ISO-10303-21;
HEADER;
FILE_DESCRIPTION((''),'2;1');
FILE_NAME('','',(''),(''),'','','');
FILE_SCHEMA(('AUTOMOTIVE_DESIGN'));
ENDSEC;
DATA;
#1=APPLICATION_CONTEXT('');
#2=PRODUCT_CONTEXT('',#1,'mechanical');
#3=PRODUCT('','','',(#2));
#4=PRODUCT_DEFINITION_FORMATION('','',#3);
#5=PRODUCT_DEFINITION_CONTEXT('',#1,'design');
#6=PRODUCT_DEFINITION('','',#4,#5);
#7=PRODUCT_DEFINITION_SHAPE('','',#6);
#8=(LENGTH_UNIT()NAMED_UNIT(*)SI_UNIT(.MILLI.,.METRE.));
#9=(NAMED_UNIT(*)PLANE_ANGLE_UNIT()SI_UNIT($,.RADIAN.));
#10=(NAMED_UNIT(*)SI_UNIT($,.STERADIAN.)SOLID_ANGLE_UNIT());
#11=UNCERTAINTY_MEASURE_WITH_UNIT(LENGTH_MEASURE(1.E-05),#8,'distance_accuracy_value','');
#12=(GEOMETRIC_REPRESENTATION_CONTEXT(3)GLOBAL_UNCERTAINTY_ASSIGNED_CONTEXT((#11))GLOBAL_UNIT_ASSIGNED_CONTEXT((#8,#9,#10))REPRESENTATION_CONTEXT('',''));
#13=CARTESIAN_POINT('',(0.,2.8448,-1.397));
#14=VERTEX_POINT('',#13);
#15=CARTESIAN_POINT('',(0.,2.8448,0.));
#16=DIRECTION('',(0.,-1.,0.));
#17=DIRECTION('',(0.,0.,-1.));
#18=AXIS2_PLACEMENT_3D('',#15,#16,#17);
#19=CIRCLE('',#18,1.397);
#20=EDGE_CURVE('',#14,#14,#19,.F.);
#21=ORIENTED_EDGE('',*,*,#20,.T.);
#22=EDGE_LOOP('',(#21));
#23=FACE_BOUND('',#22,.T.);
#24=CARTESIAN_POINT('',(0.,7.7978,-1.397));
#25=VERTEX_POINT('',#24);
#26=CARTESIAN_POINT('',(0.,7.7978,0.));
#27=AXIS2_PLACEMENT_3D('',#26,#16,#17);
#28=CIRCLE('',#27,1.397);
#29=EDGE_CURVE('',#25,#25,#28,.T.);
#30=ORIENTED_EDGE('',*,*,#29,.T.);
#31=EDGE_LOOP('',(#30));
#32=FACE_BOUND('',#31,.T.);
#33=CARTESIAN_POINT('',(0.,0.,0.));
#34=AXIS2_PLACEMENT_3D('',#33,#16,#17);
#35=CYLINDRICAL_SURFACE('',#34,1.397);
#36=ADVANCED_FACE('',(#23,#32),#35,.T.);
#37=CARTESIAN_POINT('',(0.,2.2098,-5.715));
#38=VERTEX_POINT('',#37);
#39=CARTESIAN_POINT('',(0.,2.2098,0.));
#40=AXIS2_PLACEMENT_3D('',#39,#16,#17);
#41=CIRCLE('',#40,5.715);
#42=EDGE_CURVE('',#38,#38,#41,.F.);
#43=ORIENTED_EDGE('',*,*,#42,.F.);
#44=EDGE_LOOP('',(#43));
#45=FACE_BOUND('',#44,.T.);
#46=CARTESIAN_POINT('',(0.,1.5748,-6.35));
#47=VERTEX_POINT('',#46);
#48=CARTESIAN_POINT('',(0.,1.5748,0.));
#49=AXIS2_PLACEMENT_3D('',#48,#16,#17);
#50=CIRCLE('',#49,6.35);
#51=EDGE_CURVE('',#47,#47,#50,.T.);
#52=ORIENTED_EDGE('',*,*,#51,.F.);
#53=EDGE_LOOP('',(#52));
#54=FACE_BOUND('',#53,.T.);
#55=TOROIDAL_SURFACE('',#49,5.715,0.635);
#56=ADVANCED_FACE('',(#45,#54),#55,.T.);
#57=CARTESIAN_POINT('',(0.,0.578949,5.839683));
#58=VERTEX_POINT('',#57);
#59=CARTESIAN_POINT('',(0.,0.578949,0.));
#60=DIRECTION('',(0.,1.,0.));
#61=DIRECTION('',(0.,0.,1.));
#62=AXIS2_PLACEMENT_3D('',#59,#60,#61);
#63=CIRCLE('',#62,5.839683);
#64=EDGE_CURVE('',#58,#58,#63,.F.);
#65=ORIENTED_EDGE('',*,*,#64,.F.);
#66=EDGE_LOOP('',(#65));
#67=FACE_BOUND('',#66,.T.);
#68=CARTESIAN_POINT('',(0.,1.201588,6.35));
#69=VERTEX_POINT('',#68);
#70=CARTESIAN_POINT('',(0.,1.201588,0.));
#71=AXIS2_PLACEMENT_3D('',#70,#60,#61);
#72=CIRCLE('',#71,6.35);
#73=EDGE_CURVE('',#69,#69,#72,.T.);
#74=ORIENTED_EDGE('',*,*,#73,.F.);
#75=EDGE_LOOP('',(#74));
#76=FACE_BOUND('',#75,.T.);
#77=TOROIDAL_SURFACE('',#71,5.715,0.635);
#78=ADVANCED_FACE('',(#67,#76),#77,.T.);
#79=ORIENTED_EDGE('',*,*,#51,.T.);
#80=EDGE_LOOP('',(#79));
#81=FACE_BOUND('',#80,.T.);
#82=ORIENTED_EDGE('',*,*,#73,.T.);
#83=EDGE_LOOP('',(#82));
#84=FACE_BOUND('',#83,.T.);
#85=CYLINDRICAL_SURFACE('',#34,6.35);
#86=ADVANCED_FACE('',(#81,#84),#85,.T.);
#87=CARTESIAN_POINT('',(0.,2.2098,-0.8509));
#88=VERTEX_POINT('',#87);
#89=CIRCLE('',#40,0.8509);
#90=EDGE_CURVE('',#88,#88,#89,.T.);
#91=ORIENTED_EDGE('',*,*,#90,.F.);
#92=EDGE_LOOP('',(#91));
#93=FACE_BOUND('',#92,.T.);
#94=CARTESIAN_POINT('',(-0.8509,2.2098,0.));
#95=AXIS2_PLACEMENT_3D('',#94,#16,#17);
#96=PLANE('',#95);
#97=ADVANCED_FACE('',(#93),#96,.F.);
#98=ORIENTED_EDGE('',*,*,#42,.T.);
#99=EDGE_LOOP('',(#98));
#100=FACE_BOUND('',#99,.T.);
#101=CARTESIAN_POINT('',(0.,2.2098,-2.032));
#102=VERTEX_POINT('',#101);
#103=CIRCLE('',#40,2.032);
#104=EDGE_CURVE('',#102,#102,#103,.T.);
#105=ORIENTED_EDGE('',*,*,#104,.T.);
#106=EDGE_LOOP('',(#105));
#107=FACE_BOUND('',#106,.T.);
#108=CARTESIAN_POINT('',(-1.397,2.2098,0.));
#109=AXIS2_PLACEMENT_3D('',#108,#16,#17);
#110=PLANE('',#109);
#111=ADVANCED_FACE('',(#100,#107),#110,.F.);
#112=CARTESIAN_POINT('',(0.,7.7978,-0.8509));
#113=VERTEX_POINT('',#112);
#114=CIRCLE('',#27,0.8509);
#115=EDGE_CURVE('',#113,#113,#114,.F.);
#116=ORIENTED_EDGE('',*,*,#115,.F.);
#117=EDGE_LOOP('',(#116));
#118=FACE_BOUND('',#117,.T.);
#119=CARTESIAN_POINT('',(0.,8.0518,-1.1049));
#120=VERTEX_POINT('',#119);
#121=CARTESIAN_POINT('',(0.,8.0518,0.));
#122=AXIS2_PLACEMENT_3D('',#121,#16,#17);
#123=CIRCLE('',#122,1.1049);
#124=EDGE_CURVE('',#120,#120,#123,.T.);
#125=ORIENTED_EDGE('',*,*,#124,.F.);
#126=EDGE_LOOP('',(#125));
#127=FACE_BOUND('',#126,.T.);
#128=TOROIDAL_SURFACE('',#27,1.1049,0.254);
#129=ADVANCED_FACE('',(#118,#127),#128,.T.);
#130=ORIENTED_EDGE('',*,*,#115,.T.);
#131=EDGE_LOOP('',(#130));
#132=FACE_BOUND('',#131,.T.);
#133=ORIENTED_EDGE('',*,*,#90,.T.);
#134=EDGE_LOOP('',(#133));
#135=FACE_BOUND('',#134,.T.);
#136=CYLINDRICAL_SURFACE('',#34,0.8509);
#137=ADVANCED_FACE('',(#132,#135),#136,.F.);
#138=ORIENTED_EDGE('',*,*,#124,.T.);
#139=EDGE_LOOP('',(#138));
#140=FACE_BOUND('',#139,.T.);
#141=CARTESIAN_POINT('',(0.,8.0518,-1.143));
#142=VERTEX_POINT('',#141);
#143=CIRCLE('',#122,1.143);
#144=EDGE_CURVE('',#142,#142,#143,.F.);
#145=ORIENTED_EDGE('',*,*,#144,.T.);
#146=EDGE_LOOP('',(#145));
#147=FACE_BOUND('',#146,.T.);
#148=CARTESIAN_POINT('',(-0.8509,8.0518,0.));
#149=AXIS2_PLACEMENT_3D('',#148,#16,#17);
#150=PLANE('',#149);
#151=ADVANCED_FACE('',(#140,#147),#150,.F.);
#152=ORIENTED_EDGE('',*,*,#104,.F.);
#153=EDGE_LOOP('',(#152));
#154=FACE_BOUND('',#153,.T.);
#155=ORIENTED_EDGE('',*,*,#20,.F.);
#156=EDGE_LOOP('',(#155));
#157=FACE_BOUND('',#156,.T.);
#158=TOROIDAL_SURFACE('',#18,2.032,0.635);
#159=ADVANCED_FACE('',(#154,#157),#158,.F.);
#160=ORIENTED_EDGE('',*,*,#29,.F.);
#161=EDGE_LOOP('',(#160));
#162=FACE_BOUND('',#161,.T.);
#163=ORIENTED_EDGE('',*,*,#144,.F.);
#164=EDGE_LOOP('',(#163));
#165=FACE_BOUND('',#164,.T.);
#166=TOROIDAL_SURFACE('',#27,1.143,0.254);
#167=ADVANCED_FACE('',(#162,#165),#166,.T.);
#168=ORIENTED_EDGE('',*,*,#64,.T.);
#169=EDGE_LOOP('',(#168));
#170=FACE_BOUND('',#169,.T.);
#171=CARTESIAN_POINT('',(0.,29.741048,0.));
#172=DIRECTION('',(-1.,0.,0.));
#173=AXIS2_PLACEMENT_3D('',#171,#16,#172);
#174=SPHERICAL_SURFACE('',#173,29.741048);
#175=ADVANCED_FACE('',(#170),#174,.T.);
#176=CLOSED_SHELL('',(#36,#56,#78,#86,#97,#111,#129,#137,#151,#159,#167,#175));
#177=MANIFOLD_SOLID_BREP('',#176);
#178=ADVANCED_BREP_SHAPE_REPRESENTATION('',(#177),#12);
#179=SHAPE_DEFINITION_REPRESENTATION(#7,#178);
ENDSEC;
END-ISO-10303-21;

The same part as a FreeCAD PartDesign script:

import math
import FreeCAD as App
import Part
import Sketcher
from FreeCAD import Vector
Q = App.Units.Quantity


def edges_at(feature, points):
    """Names of the edges that pass closest to the given points."""
    edges = feature.Shape.Edges
    near = lambda p: min(range(len(edges)), key=lambda i: edges[i].distToShape(Part.Vertex(*p))[0])
    return sorted({f"Edge{near(p) + 1}" for p in points})

doc = App.newDocument("Part")
body = doc.addObject("PartDesign::Body", "Body")

# Sketch on XY plane
sketch1 = doc.addObject("Sketcher::SketchObject", "Sketch")
body.addObject(sketch1)
sketch1.AttachmentSupport = (doc.XY_Plane, [""])
sketch1.MapMode = "FlatFace"
sketch1.addGeometry([
    Part.LineSegment(Vector(-0.8509, 2.2098, 0), Vector(-0.8509, 8.0518, 0)),  # 0
    Part.LineSegment(Vector(-0.8509, 8.0518, 0), Vector(-1.397, 8.0518, 0)),  # 1
    Part.LineSegment(Vector(-1.397, 8.0518, 0), Vector(-1.397, 2.2098, 0)),  # 2
    Part.LineSegment(Vector(-1.397, 2.2098, 0), Vector(-6.35, 2.2098, 0)),  # 3
    Part.LineSegment(Vector(-6.35, 2.2098, 0), Vector(-6.35, 0.6858, 0)),  # 4
    Part.ArcOfCircle(Part.Circle(Vector(0, 29.741048, 0), Vector(0, 0, 1), 29.741048), math.radians(-102.328105), math.radians(-90)),  # 5
    Part.LineSegment(Vector(0, 0, 0), Vector(0, 2.2098, 0)),  # 6
    Part.LineSegment(Vector(0, 2.2098, 0), Vector(-0.8509, 2.2098, 0)),  # 7
], False)
sketch1.addConstraint([
    Sketcher.Constraint("Coincident", 0, 2, 1, 1),
    Sketcher.Constraint("Coincident", 1, 2, 2, 1),
    Sketcher.Constraint("Coincident", 2, 2, 3, 1),
    Sketcher.Constraint("Coincident", 3, 2, 4, 1),
    Sketcher.Constraint("Coincident", 4, 2, 5, 1),
    Sketcher.Constraint("Coincident", 5, 2, 6, 1),
    Sketcher.Constraint("Coincident", 6, 2, 7, 1),
    Sketcher.Constraint("Coincident", 7, 2, 0, 1),
    Sketcher.Constraint("Vertical", 0),
    Sketcher.Constraint("Horizontal", 1),
    Sketcher.Constraint("Vertical", 2),
    Sketcher.Constraint("Horizontal", 3),
    Sketcher.Constraint("Vertical", 4),
    Sketcher.Constraint("Vertical", 6),
    Sketcher.Constraint("Horizontal", 7),
    Sketcher.Constraint("Coincident", 5, 2, -1, 1),
    Sketcher.Constraint("PointOnObject", 5, 3, -2),
    Sketcher.Constraint("Horizontal", 3, 2, 6, 2),
    Sketcher.Constraint("DistanceY", 0, 1, 0, 2, Q("0.23 in")),
    Sketcher.Constraint("DistanceY", 4, 2, 4, 1, Q("0.06 in")),
    Sketcher.Constraint("DistanceX", 3, 2, 3, 1, Q("0.195 in")),
    Sketcher.Constraint("DistanceY", 6, 1, 6, 2, Q("0.087 in")),
    Sketcher.Constraint("DistanceX", 3, 2, -1, 1, Q("0.25 in")),
    Sketcher.Constraint("DistanceX", 1, 2, 1, 1, Q("0.0215 in")),
])
revolution = doc.addObject("PartDesign::Revolution", "Revolution")
body.addObject(revolution)
revolution.Profile = sketch1
revolution.ReferenceAxis = (sketch1, ["V_Axis"])
revolution.Angle = 360
doc.recompute()

fillet = doc.addObject("PartDesign::Fillet", "Fillet")
body.addObject(fillet)
fillet.Base = (revolution, edges_at(revolution, [(0, 2.21, 1.397), (0, 2.21, 6.35), (0, 0.686, 6.35)]))
fillet.Radius = Q("0.025 in")
doc.recompute()

fillet2 = doc.addObject("PartDesign::Fillet", "Fillet001")
body.addObject(fillet2)
fillet2.Base = (fillet, edges_at(fillet, [(0, 8.052, 1.397), (0, 8.052, 0.851)]))
fillet2.Radius = Q("0.01 in")

doc.recompute()
